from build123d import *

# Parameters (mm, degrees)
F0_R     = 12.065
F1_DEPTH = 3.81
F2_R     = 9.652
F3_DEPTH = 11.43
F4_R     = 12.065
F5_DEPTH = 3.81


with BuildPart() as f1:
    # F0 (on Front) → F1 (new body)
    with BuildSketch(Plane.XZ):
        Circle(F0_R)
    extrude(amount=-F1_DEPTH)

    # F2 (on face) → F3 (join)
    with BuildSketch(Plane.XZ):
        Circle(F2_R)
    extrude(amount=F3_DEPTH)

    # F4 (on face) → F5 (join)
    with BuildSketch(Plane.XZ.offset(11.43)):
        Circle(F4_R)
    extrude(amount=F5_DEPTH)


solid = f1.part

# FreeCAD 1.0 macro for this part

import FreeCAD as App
import Part
import Sketcher
from FreeCAD import Vector
Q = App.Units.Quantity

doc = App.newDocument("Part")
body = doc.addObject("PartDesign::Body", "Body")

sketch1 = doc.addObject("Sketcher::SketchObject", "Sketch")
body.addObject(sketch1)
sketch1.AttachmentSupport = (doc.XZ_Plane, [""])
sketch1.MapMode = "FlatFace"
sketch1.addGeometry(Part.Circle(Vector(0, 0, 0), Vector(0, 0, 1), 12), False)
sketch1.addConstraint([
    Sketcher.Constraint("Coincident", 0, 3, -1, 1),
    Sketcher.Constraint("Diameter", 0, Q("0.95 in")),
])
pad1 = doc.addObject("PartDesign::Pad", "Pad")
body.addObject(pad1)
pad1.Profile = sketch1
pad1.Length = Q("0.15 in")
pad1.Reversed = True

sketch2 = doc.addObject("Sketcher::SketchObject", "Sketch001")
body.addObject(sketch2)
sketch2.AttachmentSupport = (doc.XZ_Plane, [""])
sketch2.MapMode = "FlatFace"
sketch2.addGeometry(Part.Circle(Vector(0, 0, 0), Vector(0, 0, 1), 10), False)
sketch2.addConstraint([
    Sketcher.Constraint("Coincident", 0, 3, -1, 1),
    Sketcher.Constraint("Diameter", 0, Q("0.76 in")),
])
pad2 = doc.addObject("PartDesign::Pad", "Pad001")
body.addObject(pad2)
pad2.Profile = sketch2
pad2.Length = Q("0.45 in")

sketch3 = doc.addObject("Sketcher::SketchObject", "Sketch002")
body.addObject(sketch3)
sketch3.AttachmentSupport = (doc.XZ_Plane, [""])
sketch3.MapMode = "FlatFace"
sketch3.AttachmentOffset = App.Placement(Vector(0, 0, 0.45 * 25.4), App.Rotation())
sketch3.addGeometry(Part.Circle(Vector(0, 0, 0), Vector(0, 0, 1), 12), False)
sketch3.addConstraint([
    Sketcher.Constraint("Coincident", 0, 3, -1, 1),
    Sketcher.Constraint("Diameter", 0, Q("0.95 in")),
])
pad3 = doc.addObject("PartDesign::Pad", "Pad002")
body.addObject(pad3)
pad3.Profile = sketch3
pad3.Length = Q("0.15 in")

doc.recompute()
